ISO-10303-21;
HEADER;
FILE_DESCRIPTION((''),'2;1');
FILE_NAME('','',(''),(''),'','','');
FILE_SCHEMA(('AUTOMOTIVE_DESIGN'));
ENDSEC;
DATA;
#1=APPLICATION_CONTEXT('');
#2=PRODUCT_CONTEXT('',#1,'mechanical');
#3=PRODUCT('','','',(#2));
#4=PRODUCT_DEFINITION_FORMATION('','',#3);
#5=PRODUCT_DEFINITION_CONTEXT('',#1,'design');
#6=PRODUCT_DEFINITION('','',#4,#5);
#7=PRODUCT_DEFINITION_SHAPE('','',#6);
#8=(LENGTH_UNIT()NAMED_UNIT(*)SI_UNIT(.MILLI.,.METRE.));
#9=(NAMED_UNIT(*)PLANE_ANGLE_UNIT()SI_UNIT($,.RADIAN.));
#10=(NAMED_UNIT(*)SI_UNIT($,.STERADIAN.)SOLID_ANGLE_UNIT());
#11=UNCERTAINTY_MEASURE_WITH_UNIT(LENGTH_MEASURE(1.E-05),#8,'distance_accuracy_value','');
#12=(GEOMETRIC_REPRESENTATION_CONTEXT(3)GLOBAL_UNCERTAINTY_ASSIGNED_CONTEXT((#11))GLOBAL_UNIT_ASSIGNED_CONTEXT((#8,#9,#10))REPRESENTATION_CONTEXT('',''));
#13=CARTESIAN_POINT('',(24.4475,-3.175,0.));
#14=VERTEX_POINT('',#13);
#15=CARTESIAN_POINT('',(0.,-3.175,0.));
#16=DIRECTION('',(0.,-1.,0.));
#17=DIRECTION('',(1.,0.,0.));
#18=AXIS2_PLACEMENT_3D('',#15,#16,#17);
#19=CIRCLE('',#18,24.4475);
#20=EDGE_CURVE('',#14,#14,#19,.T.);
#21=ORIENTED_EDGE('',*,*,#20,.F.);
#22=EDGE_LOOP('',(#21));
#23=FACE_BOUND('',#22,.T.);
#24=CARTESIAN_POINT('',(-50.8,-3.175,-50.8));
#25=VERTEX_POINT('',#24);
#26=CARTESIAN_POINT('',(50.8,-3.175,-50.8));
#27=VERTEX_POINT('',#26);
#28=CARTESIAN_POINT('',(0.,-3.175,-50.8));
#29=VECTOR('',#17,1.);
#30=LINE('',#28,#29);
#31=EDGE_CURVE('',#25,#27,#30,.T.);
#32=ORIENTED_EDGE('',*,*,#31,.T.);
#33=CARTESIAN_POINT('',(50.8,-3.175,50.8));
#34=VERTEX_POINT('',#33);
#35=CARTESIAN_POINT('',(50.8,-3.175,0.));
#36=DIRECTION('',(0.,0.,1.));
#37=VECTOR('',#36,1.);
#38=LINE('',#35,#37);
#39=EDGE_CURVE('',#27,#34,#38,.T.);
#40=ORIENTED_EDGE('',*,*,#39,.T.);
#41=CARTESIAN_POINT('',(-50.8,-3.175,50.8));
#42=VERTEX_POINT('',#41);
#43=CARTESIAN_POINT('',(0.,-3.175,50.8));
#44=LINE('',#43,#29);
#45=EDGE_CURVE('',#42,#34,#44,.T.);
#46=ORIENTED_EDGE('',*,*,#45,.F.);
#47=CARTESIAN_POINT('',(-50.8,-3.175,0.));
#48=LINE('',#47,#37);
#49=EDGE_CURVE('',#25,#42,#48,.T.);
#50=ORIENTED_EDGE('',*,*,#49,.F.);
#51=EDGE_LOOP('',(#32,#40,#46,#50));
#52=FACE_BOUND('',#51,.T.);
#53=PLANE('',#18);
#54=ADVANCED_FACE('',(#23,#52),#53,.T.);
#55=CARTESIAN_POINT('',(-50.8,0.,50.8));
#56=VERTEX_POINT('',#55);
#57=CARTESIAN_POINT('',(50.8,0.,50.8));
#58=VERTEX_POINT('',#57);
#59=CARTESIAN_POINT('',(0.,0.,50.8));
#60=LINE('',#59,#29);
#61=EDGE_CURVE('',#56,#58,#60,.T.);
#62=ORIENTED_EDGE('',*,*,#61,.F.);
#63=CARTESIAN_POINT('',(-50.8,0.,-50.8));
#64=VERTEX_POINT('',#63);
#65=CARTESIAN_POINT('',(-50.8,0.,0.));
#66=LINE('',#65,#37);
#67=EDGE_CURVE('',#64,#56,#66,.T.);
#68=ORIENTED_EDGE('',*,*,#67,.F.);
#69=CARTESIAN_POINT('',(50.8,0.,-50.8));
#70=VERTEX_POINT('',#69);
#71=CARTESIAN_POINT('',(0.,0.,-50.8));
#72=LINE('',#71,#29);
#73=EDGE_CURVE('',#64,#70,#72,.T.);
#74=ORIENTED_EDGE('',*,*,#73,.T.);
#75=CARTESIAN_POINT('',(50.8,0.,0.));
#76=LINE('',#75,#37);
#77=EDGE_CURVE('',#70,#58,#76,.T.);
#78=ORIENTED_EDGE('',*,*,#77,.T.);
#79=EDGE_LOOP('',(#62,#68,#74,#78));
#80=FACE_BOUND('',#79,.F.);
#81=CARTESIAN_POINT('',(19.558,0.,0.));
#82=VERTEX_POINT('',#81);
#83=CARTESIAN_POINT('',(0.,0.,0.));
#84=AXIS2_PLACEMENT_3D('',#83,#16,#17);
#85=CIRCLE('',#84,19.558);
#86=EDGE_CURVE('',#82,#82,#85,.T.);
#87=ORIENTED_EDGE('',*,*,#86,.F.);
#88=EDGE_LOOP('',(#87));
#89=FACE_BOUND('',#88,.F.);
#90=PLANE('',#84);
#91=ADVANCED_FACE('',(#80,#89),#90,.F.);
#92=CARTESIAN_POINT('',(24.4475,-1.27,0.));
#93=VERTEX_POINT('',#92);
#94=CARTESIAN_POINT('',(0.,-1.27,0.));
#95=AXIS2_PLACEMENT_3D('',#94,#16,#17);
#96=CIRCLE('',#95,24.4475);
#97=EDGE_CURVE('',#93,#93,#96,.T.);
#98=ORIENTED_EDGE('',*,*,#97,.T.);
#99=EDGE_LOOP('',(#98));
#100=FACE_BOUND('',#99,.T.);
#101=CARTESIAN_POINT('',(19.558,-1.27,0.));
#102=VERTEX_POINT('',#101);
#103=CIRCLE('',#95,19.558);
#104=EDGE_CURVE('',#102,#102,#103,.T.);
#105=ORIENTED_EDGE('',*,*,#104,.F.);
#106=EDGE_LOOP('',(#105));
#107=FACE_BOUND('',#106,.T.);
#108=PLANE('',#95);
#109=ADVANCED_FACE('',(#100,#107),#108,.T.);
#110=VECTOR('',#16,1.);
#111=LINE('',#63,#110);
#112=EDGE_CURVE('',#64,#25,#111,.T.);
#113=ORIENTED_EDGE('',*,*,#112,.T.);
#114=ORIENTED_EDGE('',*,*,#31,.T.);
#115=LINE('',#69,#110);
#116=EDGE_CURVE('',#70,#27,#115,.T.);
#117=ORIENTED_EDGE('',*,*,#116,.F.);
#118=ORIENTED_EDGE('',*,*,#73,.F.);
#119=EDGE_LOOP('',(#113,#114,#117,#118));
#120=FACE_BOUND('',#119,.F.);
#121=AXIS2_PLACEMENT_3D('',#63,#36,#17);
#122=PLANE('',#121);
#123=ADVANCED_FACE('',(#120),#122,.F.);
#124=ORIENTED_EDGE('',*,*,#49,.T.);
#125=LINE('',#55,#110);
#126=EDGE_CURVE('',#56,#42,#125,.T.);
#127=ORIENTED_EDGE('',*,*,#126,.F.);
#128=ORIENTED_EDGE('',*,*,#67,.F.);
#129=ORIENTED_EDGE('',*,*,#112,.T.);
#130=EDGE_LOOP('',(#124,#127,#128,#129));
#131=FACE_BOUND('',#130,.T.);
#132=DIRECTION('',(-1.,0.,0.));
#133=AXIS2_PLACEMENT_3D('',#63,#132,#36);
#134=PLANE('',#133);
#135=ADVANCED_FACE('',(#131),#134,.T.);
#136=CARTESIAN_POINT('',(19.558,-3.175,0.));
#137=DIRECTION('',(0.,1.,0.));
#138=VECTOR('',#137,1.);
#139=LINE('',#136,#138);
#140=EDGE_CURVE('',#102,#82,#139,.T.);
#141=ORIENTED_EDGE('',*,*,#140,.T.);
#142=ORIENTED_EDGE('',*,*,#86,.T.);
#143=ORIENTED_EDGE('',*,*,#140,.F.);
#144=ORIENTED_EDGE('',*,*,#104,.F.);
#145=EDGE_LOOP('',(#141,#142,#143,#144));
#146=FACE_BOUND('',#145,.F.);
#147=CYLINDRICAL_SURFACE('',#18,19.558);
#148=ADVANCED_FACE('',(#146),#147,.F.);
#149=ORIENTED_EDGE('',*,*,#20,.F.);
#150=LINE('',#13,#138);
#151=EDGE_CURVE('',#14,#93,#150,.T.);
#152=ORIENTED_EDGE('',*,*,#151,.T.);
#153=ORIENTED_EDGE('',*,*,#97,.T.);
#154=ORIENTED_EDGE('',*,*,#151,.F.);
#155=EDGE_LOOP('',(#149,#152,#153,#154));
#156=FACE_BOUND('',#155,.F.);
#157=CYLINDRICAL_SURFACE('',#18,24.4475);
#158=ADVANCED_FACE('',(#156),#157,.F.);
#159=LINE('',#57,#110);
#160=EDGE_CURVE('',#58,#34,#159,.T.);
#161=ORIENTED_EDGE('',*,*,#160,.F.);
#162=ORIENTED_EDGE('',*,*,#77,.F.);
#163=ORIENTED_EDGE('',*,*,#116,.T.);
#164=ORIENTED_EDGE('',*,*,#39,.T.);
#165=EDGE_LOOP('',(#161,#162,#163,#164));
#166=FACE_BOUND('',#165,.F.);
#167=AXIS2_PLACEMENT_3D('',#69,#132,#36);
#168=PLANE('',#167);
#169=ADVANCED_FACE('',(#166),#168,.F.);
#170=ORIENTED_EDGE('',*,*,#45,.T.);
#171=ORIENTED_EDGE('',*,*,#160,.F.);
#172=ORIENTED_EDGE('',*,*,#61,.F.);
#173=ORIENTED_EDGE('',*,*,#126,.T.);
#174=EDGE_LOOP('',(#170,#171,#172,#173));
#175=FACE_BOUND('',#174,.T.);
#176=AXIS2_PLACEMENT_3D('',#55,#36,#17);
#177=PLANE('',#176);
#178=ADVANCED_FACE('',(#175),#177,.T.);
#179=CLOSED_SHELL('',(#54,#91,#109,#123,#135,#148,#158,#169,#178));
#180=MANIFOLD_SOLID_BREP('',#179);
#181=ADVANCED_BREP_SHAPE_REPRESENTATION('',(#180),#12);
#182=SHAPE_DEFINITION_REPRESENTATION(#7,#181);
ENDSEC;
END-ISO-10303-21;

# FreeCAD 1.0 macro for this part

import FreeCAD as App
import Part
import Sketcher
from FreeCAD import Vector
Q = App.Units.Quantity


def add_polygon(sketch, points):
    """Adds a closed chain of lines whose ends are joined by coincident constraints."""
    first, n = sketch.GeometryCount, len(points)
    for a, b in zip(points, points[1:] + points[:1]):
        sketch.addGeometry(Part.LineSegment(App.Vector(*a, 0), App.Vector(*b, 0)), False)
    for i in range(n):
        sketch.addConstraint(Sketcher.Constraint("Coincident", first + i, 2, first + (i + 1) % n, 1))

doc = App.newDocument("Part")
params = doc.addObject("Spreadsheet::Sheet", "Params")
for row, (alias, value) in enumerate([
    ("sketch1_width", "4 in"),
    ("pad1_length", "0.125 in"),
    ("sketch2_diameter", "1.54 in"),
    ("sketch3_diameter", "1.925 in"),
    ("pocket2_length", "0.075 in"),
], start=1):
    params.set(f"A{row}", alias)
    params.set(f"B{row}", "=" + value)
    params.setAlias(f"B{row}", alias)

body = doc.addObject("PartDesign::Body", "Body")

# Sketch on XZ plane
sketch1 = body.newObject("Sketcher::SketchObject", "Sketch")
sketch1.AttachmentSupport = (doc.getObject("XZ_Plane"), [""])
sketch1.MapMode = "FlatFace"
add_polygon(sketch1, [(-50.8, 50.8), (-50.8, -50.8), (50.8, -50.8), (50.8, 50.8)])  # lines 0-3
sketch1.addConstraint([
    Sketcher.Constraint("Vertical", 0),
    Sketcher.Constraint("Horizontal", 1),
    Sketcher.Constraint("Vertical", 2),
    Sketcher.Constraint("Horizontal", 3),
    Sketcher.Constraint("Symmetric", 0, 2, 2, 2, -1, 1),
    Sketcher.Constraint("Equal", 3, 0),
    Sketcher.Constraint("DistanceX", 1, 1, 1, 2, Q("4 in")),
])
sketch1.setExpression("Constraints[10]", "Params.sketch1_width")
pad1 = body.newObject("PartDesign::Pad", "Pad")
pad1.Profile = sketch1
pad1.setExpression("Length", "Params.pad1_length")

# Sketch on XZ plane
sketch2 = body.newObject("Sketcher::SketchObject", "Sketch001")
sketch2.AttachmentSupport = (doc.getObject("XZ_Plane"), [""])
sketch2.MapMode = "FlatFace"
sketch2.AttachmentOffset = App.Placement(Vector(0, 0, 0.125 * 25.4), App.Rotation())
sketch2.addGeometry(Part.Circle(Vector(0, 0, 0), Vector(0, 0, 1), 19.558), False)
sketch2.addConstraint([
    Sketcher.Constraint("Coincident", 0, 3, -1, 1),
    Sketcher.Constraint("Diameter", 0, Q("1.54 in")),
])
sketch2.setExpression("Constraints[1]", "Params.sketch2_diameter")
pocket1 = body.newObject("PartDesign::Pocket", "Pocket")
pocket1.Profile = sketch2
pocket1.Type = "ThroughAll"

# Sketch on XZ plane
sketch3 = body.newObject("Sketcher::SketchObject", "Sketch002")
sketch3.AttachmentSupport = (doc.getObject("XZ_Plane"), [""])
sketch3.MapMode = "FlatFace"
sketch3.AttachmentOffset = App.Placement(Vector(0, 0, 0.125 * 25.4), App.Rotation())
sketch3.addGeometry(Part.Circle(Vector(0, 0, 0), Vector(0, 0, 1), 24.4475), False)
sketch3.addConstraint([
    Sketcher.Constraint("Coincident", 0, 3, -1, 1),
    Sketcher.Constraint("Diameter", 0, Q("1.925 in")),
])
sketch3.setExpression("Constraints[1]", "Params.sketch3_diameter")
pocket2 = body.newObject("PartDesign::Pocket", "Pocket001")
pocket2.Profile = sketch3
pocket2.setExpression("Length", "Params.pocket2_length")

doc.recompute()
